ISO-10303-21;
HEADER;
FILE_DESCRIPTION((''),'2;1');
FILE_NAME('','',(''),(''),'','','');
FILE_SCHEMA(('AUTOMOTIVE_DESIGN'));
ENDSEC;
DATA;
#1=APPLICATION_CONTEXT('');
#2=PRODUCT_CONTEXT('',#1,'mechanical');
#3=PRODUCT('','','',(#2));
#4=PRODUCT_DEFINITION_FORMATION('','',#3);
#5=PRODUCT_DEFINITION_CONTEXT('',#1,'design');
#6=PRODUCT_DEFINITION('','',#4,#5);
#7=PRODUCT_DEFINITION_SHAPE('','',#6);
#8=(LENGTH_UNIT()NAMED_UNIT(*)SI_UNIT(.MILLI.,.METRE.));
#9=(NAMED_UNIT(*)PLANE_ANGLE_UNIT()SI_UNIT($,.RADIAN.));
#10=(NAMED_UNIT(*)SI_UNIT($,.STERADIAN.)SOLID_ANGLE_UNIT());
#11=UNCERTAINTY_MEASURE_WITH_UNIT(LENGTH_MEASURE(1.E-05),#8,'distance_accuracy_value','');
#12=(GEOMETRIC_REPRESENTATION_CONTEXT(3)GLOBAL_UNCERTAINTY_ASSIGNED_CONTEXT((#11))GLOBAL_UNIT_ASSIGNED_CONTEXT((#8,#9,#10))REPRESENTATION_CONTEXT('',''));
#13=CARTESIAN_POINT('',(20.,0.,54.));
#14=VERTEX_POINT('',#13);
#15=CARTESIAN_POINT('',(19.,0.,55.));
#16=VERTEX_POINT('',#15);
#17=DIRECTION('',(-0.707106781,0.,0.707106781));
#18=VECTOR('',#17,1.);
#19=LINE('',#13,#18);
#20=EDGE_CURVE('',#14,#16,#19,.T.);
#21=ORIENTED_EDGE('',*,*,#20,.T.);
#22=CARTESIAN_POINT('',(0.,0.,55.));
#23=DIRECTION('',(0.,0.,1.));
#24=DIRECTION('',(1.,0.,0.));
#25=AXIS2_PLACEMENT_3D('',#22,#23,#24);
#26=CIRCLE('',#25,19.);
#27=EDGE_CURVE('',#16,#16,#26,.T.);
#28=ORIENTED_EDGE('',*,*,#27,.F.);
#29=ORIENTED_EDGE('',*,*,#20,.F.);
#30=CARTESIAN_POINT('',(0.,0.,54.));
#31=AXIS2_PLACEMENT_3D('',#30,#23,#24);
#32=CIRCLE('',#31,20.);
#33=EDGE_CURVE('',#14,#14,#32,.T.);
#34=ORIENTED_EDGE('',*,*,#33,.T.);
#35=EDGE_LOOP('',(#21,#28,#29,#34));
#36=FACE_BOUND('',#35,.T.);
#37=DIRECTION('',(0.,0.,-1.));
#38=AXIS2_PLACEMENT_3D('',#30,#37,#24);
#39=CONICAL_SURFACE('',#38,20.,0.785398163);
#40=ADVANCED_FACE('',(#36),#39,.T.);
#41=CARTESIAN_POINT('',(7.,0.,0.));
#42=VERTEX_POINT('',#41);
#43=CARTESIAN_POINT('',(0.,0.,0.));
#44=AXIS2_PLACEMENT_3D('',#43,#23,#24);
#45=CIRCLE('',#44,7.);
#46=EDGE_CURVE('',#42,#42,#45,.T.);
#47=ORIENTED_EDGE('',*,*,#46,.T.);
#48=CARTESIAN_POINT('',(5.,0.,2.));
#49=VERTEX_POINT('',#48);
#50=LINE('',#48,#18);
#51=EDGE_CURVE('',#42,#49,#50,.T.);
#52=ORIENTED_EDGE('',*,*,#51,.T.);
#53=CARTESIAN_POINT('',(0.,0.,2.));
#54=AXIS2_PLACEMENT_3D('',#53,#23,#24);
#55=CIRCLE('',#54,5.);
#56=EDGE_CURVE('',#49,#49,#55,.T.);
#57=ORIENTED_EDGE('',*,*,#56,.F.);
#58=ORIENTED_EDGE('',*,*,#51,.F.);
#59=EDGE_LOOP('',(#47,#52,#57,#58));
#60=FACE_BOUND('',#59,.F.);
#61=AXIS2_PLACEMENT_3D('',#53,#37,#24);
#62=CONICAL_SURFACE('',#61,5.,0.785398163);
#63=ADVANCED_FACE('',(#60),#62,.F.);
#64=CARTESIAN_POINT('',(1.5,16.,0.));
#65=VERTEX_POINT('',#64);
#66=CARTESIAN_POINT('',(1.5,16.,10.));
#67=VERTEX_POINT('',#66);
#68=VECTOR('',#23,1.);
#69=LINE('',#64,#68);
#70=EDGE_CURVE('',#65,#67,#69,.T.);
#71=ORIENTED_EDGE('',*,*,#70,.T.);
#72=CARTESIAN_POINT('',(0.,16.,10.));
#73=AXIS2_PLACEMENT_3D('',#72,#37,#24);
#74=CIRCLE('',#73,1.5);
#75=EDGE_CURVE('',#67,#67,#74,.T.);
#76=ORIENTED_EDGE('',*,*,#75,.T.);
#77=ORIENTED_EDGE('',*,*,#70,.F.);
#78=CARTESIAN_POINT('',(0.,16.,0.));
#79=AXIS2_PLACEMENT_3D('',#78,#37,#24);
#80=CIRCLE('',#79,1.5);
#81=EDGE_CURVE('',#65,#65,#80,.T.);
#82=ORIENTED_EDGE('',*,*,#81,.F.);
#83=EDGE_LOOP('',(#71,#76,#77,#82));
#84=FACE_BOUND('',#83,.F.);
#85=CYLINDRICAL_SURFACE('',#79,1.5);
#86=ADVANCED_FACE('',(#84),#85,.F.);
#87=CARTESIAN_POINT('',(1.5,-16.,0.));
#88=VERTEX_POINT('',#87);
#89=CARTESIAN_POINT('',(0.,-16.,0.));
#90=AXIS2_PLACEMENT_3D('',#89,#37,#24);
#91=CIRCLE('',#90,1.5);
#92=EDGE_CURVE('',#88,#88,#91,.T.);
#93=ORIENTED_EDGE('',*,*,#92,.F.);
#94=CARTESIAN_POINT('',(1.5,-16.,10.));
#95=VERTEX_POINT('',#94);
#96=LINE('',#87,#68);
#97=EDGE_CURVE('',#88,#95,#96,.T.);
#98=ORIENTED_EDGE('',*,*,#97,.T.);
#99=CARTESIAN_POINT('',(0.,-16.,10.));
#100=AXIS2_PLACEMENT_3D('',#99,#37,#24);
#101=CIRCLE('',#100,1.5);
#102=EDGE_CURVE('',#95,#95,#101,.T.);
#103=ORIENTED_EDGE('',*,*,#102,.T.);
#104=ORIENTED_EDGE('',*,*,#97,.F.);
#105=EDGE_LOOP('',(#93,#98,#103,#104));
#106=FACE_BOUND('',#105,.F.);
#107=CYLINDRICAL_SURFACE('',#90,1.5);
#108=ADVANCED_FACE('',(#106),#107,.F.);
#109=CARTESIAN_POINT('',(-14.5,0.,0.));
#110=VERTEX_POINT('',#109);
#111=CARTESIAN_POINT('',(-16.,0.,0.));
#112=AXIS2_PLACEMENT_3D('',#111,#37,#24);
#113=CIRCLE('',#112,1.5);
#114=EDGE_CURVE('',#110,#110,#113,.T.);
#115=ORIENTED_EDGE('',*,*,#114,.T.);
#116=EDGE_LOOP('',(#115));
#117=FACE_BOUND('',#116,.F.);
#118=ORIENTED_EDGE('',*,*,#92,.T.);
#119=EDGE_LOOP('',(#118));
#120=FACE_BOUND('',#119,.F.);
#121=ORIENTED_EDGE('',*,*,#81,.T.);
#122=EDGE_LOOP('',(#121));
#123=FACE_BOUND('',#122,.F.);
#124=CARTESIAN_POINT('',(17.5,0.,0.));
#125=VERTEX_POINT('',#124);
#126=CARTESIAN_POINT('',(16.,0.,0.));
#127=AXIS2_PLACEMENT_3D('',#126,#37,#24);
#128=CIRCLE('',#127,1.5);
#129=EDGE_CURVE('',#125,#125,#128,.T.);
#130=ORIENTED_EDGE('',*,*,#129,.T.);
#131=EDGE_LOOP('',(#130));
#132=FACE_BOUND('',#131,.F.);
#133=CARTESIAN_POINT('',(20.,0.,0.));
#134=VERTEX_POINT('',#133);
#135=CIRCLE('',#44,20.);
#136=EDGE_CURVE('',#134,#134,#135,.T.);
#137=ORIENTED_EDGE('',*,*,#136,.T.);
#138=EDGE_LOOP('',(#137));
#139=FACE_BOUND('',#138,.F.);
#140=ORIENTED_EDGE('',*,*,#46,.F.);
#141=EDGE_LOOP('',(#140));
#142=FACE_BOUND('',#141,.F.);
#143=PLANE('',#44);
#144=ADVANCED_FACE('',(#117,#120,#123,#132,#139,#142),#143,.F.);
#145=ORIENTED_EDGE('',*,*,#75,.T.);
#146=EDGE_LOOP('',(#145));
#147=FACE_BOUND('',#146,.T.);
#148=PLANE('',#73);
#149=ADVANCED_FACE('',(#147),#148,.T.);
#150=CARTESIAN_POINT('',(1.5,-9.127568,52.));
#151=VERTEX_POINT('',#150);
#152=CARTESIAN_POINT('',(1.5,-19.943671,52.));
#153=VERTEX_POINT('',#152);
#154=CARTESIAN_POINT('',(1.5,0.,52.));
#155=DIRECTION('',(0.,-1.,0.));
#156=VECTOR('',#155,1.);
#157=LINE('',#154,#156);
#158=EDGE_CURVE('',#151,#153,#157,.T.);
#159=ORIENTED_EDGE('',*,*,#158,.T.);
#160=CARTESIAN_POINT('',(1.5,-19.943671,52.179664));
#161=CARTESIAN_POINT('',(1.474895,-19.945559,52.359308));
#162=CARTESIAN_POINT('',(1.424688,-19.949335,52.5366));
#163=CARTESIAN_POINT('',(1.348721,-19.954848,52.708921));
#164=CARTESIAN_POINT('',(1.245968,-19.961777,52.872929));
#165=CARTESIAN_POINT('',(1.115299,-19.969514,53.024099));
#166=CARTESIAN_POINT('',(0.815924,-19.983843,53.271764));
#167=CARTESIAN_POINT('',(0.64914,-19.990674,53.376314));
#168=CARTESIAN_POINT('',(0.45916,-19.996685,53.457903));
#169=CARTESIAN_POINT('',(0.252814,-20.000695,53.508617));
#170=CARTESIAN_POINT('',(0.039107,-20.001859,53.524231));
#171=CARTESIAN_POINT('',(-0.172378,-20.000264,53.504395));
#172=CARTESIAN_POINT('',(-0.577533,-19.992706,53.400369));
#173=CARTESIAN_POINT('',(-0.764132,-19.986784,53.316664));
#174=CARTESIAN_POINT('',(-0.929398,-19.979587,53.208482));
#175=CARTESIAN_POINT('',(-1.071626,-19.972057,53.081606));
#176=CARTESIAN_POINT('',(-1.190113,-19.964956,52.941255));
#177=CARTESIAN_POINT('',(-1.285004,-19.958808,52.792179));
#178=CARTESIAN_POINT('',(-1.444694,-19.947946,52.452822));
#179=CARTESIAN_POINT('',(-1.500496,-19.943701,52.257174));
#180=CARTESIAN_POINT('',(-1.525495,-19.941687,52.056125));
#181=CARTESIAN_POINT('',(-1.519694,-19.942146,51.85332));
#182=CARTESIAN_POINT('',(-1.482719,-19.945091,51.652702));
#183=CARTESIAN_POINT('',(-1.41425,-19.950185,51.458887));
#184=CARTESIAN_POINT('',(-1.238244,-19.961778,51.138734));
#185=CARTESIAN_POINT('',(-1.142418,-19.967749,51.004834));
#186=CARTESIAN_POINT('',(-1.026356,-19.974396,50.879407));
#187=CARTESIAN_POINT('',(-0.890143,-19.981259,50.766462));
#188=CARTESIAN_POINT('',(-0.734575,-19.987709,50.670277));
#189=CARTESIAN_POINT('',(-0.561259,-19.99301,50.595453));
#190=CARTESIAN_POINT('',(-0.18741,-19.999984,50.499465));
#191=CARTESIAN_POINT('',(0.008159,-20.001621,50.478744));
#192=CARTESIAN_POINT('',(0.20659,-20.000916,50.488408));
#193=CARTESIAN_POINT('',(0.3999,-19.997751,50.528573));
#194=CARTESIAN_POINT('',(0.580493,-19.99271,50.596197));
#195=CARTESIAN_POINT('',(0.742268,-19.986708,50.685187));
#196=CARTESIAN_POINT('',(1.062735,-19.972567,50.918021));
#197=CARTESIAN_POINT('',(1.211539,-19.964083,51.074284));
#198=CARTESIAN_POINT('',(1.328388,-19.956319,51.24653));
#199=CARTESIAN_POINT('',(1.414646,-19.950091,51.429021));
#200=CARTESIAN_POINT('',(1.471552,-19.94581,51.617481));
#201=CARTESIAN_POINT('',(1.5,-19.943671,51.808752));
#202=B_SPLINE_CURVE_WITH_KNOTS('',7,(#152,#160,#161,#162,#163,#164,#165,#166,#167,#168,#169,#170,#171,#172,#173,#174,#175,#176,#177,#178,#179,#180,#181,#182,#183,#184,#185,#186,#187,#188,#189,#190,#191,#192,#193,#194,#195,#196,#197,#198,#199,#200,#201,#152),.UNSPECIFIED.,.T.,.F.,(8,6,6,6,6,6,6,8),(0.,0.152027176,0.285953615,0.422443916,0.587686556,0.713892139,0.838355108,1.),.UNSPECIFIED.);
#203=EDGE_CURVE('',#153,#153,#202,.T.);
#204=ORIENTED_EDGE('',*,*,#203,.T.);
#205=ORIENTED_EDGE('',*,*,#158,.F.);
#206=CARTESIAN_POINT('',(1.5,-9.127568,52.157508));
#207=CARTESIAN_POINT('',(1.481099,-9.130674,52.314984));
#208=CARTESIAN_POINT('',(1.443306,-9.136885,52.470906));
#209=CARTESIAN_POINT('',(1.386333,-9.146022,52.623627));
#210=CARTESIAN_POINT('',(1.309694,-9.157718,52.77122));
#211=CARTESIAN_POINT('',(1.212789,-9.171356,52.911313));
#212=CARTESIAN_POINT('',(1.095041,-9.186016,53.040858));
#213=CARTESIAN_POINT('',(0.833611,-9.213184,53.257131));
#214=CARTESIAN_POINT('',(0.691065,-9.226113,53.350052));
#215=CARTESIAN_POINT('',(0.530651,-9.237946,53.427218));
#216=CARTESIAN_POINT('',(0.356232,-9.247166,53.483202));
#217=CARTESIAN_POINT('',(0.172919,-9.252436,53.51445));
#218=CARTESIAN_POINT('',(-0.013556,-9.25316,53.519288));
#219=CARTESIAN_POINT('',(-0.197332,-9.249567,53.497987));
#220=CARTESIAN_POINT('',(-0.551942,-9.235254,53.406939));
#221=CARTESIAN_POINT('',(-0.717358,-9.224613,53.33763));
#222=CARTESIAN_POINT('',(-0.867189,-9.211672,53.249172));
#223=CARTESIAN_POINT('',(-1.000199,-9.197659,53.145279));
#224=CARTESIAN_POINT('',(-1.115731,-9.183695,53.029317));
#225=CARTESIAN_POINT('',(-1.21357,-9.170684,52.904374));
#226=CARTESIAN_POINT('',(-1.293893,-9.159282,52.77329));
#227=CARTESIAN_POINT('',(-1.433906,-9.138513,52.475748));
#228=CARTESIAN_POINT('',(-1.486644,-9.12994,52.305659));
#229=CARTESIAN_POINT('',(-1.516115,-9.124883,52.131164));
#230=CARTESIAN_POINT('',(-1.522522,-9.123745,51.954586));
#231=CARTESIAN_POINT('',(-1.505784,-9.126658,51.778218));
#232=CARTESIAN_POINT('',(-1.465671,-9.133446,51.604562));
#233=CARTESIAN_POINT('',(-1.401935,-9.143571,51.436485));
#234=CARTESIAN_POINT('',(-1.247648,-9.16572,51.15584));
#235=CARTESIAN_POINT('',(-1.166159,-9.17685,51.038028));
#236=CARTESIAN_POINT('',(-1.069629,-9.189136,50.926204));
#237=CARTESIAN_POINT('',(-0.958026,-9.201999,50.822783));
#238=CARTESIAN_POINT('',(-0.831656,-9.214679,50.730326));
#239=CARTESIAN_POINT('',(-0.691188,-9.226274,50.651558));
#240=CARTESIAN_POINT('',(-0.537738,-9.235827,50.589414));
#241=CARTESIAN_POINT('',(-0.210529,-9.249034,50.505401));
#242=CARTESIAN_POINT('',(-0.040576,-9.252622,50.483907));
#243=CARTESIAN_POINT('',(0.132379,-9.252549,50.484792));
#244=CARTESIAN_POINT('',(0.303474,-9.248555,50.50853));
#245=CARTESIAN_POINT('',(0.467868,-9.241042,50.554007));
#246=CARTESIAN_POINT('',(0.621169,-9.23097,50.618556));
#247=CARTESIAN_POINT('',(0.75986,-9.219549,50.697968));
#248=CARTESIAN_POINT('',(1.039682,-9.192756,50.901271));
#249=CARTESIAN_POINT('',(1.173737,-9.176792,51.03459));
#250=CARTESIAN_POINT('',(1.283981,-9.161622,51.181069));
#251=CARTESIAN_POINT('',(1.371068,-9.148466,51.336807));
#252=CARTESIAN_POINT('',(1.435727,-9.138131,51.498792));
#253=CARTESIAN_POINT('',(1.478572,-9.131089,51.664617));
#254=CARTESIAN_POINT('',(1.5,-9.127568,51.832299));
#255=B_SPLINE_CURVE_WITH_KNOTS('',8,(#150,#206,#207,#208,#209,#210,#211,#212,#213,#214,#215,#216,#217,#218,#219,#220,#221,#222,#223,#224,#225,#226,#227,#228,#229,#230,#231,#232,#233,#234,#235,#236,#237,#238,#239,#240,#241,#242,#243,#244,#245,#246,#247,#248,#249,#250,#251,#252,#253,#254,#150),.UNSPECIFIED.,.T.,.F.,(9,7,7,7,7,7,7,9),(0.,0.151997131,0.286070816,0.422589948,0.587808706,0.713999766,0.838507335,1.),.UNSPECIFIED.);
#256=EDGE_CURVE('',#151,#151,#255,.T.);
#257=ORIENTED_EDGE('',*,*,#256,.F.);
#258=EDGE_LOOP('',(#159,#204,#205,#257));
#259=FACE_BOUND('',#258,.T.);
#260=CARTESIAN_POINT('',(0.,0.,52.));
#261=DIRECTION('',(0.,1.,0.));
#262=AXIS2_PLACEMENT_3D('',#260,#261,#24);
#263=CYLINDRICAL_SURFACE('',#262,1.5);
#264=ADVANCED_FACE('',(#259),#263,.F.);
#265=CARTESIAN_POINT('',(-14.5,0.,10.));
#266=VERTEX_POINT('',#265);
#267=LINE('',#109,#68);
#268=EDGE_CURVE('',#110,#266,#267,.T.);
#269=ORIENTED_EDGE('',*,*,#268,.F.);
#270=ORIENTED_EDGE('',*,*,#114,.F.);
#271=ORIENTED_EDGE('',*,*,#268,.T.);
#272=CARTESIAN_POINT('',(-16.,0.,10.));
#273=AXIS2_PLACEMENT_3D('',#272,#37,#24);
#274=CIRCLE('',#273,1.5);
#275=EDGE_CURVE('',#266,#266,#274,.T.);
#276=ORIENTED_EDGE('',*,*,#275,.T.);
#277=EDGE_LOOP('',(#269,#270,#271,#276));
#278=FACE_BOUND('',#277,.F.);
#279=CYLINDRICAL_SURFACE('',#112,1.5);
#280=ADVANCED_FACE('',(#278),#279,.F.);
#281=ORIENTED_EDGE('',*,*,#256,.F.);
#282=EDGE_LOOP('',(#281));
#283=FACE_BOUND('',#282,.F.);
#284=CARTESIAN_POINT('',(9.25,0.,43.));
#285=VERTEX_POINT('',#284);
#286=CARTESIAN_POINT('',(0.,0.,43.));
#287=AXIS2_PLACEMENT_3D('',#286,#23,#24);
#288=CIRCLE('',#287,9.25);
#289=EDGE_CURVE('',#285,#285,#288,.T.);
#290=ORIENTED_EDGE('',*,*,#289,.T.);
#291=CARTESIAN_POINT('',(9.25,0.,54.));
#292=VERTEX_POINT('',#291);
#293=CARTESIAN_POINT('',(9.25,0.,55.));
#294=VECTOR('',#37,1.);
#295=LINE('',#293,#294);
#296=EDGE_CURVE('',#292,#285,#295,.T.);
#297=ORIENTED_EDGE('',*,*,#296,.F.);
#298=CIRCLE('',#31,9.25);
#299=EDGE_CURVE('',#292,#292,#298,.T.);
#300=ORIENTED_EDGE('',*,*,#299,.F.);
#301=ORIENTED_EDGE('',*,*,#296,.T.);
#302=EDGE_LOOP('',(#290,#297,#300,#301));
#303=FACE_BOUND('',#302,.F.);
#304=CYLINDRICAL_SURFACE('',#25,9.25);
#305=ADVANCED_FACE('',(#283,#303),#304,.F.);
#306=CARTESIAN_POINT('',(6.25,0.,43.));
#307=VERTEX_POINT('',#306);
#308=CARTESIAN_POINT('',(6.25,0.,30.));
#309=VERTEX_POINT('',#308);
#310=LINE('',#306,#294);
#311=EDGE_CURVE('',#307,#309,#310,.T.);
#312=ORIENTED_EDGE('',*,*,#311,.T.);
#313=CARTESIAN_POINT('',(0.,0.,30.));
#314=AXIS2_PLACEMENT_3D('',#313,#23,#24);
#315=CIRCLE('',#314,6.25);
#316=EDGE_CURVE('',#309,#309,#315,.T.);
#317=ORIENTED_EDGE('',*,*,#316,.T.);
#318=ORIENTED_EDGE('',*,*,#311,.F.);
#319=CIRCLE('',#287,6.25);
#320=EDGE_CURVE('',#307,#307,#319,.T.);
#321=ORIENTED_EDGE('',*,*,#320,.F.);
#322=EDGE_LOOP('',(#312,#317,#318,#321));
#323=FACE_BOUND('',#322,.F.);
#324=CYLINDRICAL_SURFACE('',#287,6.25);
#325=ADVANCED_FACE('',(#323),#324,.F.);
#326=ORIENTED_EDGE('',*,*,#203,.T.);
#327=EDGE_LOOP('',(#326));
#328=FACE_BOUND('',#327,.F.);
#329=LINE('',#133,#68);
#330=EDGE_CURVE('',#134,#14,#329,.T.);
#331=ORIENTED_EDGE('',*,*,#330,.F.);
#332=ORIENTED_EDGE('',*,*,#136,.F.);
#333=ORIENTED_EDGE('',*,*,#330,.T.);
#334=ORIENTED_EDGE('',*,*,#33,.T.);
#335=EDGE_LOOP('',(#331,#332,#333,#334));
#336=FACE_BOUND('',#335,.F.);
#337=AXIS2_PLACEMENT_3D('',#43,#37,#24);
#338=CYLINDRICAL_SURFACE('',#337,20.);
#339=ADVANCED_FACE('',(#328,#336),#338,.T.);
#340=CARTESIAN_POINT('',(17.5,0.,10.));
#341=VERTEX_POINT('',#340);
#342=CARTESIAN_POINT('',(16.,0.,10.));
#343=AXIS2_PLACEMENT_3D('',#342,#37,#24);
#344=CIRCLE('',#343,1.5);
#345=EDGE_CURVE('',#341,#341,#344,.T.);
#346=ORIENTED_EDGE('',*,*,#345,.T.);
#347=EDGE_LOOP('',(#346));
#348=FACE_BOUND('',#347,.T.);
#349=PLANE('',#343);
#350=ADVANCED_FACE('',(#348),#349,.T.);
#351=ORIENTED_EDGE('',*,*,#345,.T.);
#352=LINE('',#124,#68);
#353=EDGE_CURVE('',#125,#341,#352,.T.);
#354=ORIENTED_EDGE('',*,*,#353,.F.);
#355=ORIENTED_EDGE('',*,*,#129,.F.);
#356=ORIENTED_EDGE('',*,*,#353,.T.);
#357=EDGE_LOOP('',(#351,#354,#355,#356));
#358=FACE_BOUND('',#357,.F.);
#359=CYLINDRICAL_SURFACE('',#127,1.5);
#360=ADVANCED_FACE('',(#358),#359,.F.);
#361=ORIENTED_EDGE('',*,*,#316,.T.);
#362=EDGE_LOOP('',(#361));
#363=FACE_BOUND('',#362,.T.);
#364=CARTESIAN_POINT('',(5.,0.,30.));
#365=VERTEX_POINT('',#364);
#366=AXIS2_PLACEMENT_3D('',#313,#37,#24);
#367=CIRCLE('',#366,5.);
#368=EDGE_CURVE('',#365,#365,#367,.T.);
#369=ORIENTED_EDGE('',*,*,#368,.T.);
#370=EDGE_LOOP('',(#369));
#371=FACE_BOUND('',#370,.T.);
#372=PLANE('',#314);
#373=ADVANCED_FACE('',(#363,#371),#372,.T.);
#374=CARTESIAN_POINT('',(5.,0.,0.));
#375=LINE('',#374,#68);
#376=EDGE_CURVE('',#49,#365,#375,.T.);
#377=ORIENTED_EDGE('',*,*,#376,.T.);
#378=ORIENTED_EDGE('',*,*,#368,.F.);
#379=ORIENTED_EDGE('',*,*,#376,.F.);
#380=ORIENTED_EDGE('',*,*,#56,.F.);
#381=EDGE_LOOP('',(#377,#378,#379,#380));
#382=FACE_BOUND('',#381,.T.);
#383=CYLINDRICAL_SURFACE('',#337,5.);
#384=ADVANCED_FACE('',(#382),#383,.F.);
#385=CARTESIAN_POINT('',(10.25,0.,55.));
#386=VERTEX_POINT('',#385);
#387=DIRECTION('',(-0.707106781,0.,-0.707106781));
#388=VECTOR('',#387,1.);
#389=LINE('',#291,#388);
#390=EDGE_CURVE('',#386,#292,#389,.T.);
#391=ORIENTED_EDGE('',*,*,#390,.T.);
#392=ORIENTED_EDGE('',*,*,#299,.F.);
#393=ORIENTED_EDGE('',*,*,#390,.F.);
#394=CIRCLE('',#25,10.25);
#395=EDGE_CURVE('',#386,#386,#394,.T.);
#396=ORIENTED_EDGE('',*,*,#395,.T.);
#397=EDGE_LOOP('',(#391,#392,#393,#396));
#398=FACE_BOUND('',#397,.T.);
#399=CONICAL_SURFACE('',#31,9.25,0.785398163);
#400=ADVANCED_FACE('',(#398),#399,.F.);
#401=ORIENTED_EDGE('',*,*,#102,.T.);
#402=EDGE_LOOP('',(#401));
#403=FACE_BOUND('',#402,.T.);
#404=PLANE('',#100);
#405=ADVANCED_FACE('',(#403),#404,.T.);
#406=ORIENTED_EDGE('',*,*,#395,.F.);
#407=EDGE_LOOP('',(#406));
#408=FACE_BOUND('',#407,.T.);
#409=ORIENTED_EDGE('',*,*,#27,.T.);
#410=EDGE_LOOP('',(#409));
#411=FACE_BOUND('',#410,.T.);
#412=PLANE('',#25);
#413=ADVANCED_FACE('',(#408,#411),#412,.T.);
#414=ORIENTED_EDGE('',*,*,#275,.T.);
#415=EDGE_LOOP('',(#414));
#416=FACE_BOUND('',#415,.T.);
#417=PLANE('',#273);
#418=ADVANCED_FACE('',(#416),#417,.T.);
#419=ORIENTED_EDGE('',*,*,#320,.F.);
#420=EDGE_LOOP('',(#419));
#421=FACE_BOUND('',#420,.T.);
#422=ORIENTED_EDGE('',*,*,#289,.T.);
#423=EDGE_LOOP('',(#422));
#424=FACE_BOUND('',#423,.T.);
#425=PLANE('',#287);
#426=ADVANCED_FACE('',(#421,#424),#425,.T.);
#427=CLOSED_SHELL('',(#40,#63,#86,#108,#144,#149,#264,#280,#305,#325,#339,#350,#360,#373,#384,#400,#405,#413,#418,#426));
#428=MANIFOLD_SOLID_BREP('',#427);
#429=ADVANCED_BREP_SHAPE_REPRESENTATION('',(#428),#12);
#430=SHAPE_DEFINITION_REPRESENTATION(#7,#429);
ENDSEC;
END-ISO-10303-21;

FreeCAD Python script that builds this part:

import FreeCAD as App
import Part
import Sketcher

V = App.Vector


def edges_at(feature, points):
    """Names of the edges that pass closest to the given points."""
    edges = feature.Shape.Edges
    near = lambda p: min(range(len(edges)), key=lambda i: edges[i].distToShape(Part.Vertex(*p))[0])
    return sorted({f"Edge{near(p) + 1}" for p in points})

doc = App.newDocument("Part")
body = doc.addObject("PartDesign::Body", "Body")

sketch1 = body.newObject("Sketcher::SketchObject", "Sketch")
sketch1.AttachmentSupport = (doc.getObject("XY_Plane"), [""])
sketch1.MapMode = "FlatFace"
sketch1.addGeometry(Part.Circle(V(0, 0, 0), V(0, 0, 1), 20), False)
sketch1.addGeometry(Part.Circle(V(0, 0, 0), V(0, 0, 1), 5), False)
sketch1.addConstraint(Sketcher.Constraint("Coincident", 0, 3, -1, 1))
sketch1.addConstraint(Sketcher.Constraint("Coincident", 1, 3, -1, 1))
sketch1.addConstraint(Sketcher.Constraint("Diameter", 0, 40.0))
sketch1.addConstraint(Sketcher.Constraint("Diameter", 1, 10.0))
pad1 = body.newObject("PartDesign::Pad", "Pad")
pad1.Profile = sketch1
pad1.Length = 55

sketch2 = body.newObject("Sketcher::SketchObject", "Sketch001")
sketch2.AttachmentSupport = (doc.getObject("XY_Plane"), [""])
sketch2.MapMode = "FlatFace"
sketch2.AttachmentOffset = App.Placement(V(0, 0, 55), App.Rotation())
sketch2.addGeometry(Part.Circle(V(0, 0, 0), V(0, 0, 1), 9), False)
sketch2.addConstraint(Sketcher.Constraint("Coincident", 0, 3, -1, 1))
sketch2.addConstraint(Sketcher.Constraint("Diameter", 0, 18.5))
pocket1 = body.newObject("PartDesign::Pocket", "Pocket")
pocket1.Profile = sketch2
pocket1.Length = 12

sketch3 = body.newObject("Sketcher::SketchObject", "Sketch002")
sketch3.AttachmentSupport = (doc.getObject("XY_Plane"), [""])
sketch3.MapMode = "FlatFace"
sketch3.AttachmentOffset = App.Placement(V(0, 0, 43), App.Rotation())
sketch3.addGeometry(Part.Circle(V(0, 0, 0), V(0, 0, 1), 6), False)
sketch3.addConstraint(Sketcher.Constraint("Coincident", 0, 3, -1, 1))
sketch3.addConstraint(Sketcher.Constraint("Diameter", 0, 12.5))
pocket2 = body.newObject("PartDesign::Pocket", "Pocket001")
pocket2.Profile = sketch3
pocket2.Length = 13
doc.recompute()

chamfer = body.newObject("PartDesign::Chamfer", "Chamfer")
chamfer.Base = (pocket2, edges_at(pocket2, [(-9.25, 0, 55), (-20, 0, 55)]))
chamfer.Size = 1

sketch4 = body.newObject("Sketcher::SketchObject", "Sketch003")
sketch4.AttachmentSupport = (doc.getObject("XZ_Plane"), [""])
sketch4.MapMode = "FlatFace"
sketch4.addGeometry(Part.Circle(V(0, 52, 0), V(0, 0, 1), 1.5), False)
sketch4.addConstraint(Sketcher.Constraint("PointOnObject", 0, 3, -2))
sketch4.addConstraint(Sketcher.Constraint("Diameter", 0, 3.0))
sketch4.addConstraint(Sketcher.Constraint("DistanceY", -1, 1, 0, 3, 52.0))
pocket3 = body.newObject("PartDesign::Pocket", "Pocket002")
pocket3.Profile = sketch4
pocket3.Type = "ThroughAll"
pocket3.Reversed = True
doc.recompute()

chamfer2 = body.newObject("PartDesign::Chamfer", "Chamfer001")
chamfer2.Base = (pocket3, edges_at(pocket3, [(-5, 0, 0)]))
chamfer2.Size = 2

sketch5 = body.newObject("Sketcher::SketchObject", "Sketch004")
sketch5.AttachmentSupport = (doc.getObject("XY_Plane"), [""])
sketch5.MapMode = "FlatFace"
sketch5.addGeometry(Part.Circle(V(-16, 0, 0), V(0, 0, 1), 1.5), False)
sketch5.addGeometry(Part.Circle(V(0, -16, 0), V(0, 0, 1), 1.5), False)
sketch5.addGeometry(Part.Circle(V(16, 0, 0), V(0, 0, 1), 1.5), False)
sketch5.addGeometry(Part.Circle(V(0, 16, 0), V(0, 0, 1), 1.5), False)
sketch5.addConstraint(Sketcher.Constraint("Equal", 0, 1))
sketch5.addConstraint(Sketcher.Constraint("Equal", 1, 2))
sketch5.addConstraint(Sketcher.Constraint("Equal", 2, 3))
sketch5.addConstraint(Sketcher.Constraint("Symmetric", 0, 3, 2, 3, -1, 1))
sketch5.addConstraint(Sketcher.Constraint("Symmetric", 1, 3, 3, 3, -1, 1))
sketch5.addConstraint(Sketcher.Constraint("PointOnObject", 0, 3, -1))
sketch5.addConstraint(Sketcher.Constraint("PointOnObject", 1, 3, -2))
sketch5.addConstraint(Sketcher.Constraint("Diameter", 0, 3.0))
sketch5.addConstraint(Sketcher.Constraint("DistanceX", 0, 3, -1, 1, 16.0))
sketch5.addConstraint(Sketcher.Constraint("DistanceY", 1, 3, -1, 1, 16.0))
pocket4 = body.newObject("PartDesign::Pocket", "Pocket003")
pocket4.Profile = sketch5
pocket4.Length = 10
pocket4.Reversed = True

doc.recompute()
